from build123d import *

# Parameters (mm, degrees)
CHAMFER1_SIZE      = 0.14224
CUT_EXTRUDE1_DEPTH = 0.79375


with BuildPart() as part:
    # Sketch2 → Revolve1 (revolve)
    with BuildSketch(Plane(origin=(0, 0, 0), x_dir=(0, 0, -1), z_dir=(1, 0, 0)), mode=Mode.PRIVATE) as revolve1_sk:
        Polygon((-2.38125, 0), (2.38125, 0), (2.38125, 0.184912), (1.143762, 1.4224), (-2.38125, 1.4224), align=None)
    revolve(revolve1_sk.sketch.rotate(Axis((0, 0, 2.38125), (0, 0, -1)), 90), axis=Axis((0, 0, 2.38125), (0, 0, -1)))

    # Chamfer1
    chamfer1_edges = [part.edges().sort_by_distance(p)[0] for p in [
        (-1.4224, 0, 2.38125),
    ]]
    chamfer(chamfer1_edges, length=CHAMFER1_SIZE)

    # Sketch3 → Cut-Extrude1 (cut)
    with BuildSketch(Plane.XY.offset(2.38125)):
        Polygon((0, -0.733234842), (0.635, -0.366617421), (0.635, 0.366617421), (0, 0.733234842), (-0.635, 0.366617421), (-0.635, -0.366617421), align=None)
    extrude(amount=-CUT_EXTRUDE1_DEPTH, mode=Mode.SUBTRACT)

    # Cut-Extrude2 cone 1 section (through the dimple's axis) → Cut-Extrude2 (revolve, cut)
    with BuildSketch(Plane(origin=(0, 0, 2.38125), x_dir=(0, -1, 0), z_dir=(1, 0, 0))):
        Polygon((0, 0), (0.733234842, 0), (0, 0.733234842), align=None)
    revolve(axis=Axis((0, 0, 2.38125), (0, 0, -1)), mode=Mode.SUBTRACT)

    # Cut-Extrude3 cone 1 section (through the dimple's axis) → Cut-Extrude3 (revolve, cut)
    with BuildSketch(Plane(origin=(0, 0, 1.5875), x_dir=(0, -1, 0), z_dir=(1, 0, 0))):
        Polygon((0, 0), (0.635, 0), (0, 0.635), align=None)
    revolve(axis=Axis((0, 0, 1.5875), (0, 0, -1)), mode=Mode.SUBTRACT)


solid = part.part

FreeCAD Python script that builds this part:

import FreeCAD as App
import Part
import Sketcher
from FreeCAD import Vector
Q = App.Units.Quantity


def edges_at(feature, points):
    """Names of the edges that pass closest to the given points."""
    edges = feature.Shape.Edges
    near = lambda p: min(range(len(edges)), key=lambda i: edges[i].distToShape(Part.Vertex(*p))[0])
    return sorted({f"Edge{near(p) + 1}" for p in points})


def add_polygon(sketch, points):
    """Adds a closed chain of lines whose ends are joined by coincident constraints."""
    first, n = sketch.GeometryCount, len(points)
    for a, b in zip(points, points[1:] + points[:1]):
        sketch.addGeometry(Part.LineSegment(App.Vector(*a, 0), App.Vector(*b, 0)), False)
    for i in range(n):
        sketch.addConstraint(Sketcher.Constraint("Coincident", first + i, 2, first + (i + 1) % n, 1))

doc = App.newDocument("Part")
body = doc.addObject("PartDesign::Body", "Body")

# Sketch on YZ plane
sketch1 = doc.addObject("Sketcher::SketchObject", "Sketch")
body.addObject(sketch1)
sketch1.AttachmentSupport = (doc.YZ_Plane, [""])
sketch1.MapMode = "FlatFace"
add_polygon(sketch1, [(0, 2.38), (0, -2.38), (0.18, -2.38), (1.42, -1.14), (1.42, 2.38)])  # lines 0-4
sketch1.addConstraint([
    Sketcher.Constraint("Vertical", 0),
    Sketcher.Constraint("Horizontal", 1),
    Sketcher.Constraint("Vertical", 3),
    Sketcher.Constraint("Horizontal", 4),
    Sketcher.Constraint("Symmetric", 0, 2, 4, 2, -1, 1),
    Sketcher.Constraint("Angle", 2, Q("45 deg")),
    Sketcher.Constraint("DistanceX", 4, 2, 4, 1, Q("0.056 in")),
    Sketcher.Constraint("DistanceY", 0, 2, 0, 1, Q("0.1875 in")),
    Sketcher.Constraint("DistanceX", 1, 1, 1, 2, Q("0.184912 mm")),
])
revolution = doc.addObject("PartDesign::Revolution", "Revolution")
body.addObject(revolution)
revolution.Profile = sketch1
revolution.ReferenceAxis = (sketch1, ["V_Axis"])
revolution.Angle = 360
doc.recompute()

chamfer = doc.addObject("PartDesign::Chamfer", "Chamfer")
body.addObject(chamfer)
chamfer.Base = (revolution, edges_at(revolution, [(-1.422, 0, 2.381)]))
chamfer.Size = Q("0.0056 in")

# Sketch on XY plane
sketch2 = doc.addObject("Sketcher::SketchObject", "Sketch001")
body.addObject(sketch2)
sketch2.AttachmentSupport = (doc.XY_Plane, [""])
sketch2.MapMode = "FlatFace"
sketch2.AttachmentOffset = App.Placement(Vector(0, 0, 0.09375 * 25.4), App.Rotation())
add_polygon(sketch2, [(0, -0.7), (0.6, -0.4), (0.6, 0.4), (0, 0.7), (-0.6, 0.4), (-0.6, -0.4)])  # lines 0-5
sketch2.addConstraint([
    Sketcher.Constraint("Vertical", 1),
    Sketcher.Constraint("Vertical", 4),
    Sketcher.Constraint("Symmetric", 0, 2, 3, 2, -1, 1),
    Sketcher.Constraint("Symmetric", 2, 2, 5, 2, -1, 1),
    Sketcher.Constraint("PointOnObject", 2, 2, -2),
    Sketcher.Constraint("Parallel", 2, 5),
    Sketcher.Constraint("Horizontal", 1, 2, 3, 2),
    Sketcher.Constraint("Angle", 0, Q("30 deg")),
    Sketcher.Constraint("DistanceX", 3, 2, 1, 2, Q("0.05 in")),
    Sketcher.Constraint("DistanceY", 1, 1, 1, 2, Q("0.733235 mm")),
])
pocket1 = doc.addObject("PartDesign::Pocket", "Pocket")
body.addObject(pocket1)
pocket1.Profile = sketch2
pocket1.Length = Q("0.03125 in")

# Sketch on YZ plane
sketch3 = doc.addObject("Sketcher::SketchObject", "Sketch002")
body.addObject(sketch3)
sketch3.AttachmentSupport = (doc.YZ_Plane, [""])
sketch3.MapMode = "FlatFace"
add_polygon(sketch3, [(0, 2.4), (-0.7, 2.4), (0, 1.6)])  # lines 0-2
sketch3.addConstraint([
    Sketcher.Constraint("Horizontal", 0),
    Sketcher.Constraint("Vertical", 2),
    Sketcher.Constraint("PointOnObject", 1, 2, -2),
    Sketcher.Constraint("Equal", 0, 2),
    Sketcher.Constraint("DistanceY", -1, 1, 0, 2, Q("0.09375 in")),
    Sketcher.Constraint("Distance", 1, Q("1.036951 mm")),
])
groove = doc.addObject("PartDesign::Groove", "Groove")
body.addObject(groove)
groove.Profile = sketch3
groove.ReferenceAxis = (sketch3, ["V_Axis"])
groove.Angle = 360

# Sketch on YZ plane
sketch4 = doc.addObject("Sketcher::SketchObject", "Sketch003")
body.addObject(sketch4)
sketch4.AttachmentSupport = (doc.YZ_Plane, [""])
sketch4.MapMode = "FlatFace"
add_polygon(sketch4, [(0, 1.6), (-0.6, 1.6), (0, 1)])  # lines 0-2
sketch4.addConstraint([
    Sketcher.Constraint("Horizontal", 0),
    Sketcher.Constraint("Vertical", 2),
    Sketcher.Constraint("PointOnObject", 1, 2, -2),
    Sketcher.Constraint("Equal", 0, 2),
    Sketcher.Constraint("DistanceX", 0, 2, 0, 1, Q("0.025 in")),
    Sketcher.Constraint("DistanceY", -1, 1, 0, 2, Q("0.0625 in")),
])
groove2 = doc.addObject("PartDesign::Groove", "Groove001")
body.addObject(groove2)
groove2.Profile = sketch4
groove2.ReferenceAxis = (sketch4, ["V_Axis"])
groove2.Angle = 360

doc.recompute()
